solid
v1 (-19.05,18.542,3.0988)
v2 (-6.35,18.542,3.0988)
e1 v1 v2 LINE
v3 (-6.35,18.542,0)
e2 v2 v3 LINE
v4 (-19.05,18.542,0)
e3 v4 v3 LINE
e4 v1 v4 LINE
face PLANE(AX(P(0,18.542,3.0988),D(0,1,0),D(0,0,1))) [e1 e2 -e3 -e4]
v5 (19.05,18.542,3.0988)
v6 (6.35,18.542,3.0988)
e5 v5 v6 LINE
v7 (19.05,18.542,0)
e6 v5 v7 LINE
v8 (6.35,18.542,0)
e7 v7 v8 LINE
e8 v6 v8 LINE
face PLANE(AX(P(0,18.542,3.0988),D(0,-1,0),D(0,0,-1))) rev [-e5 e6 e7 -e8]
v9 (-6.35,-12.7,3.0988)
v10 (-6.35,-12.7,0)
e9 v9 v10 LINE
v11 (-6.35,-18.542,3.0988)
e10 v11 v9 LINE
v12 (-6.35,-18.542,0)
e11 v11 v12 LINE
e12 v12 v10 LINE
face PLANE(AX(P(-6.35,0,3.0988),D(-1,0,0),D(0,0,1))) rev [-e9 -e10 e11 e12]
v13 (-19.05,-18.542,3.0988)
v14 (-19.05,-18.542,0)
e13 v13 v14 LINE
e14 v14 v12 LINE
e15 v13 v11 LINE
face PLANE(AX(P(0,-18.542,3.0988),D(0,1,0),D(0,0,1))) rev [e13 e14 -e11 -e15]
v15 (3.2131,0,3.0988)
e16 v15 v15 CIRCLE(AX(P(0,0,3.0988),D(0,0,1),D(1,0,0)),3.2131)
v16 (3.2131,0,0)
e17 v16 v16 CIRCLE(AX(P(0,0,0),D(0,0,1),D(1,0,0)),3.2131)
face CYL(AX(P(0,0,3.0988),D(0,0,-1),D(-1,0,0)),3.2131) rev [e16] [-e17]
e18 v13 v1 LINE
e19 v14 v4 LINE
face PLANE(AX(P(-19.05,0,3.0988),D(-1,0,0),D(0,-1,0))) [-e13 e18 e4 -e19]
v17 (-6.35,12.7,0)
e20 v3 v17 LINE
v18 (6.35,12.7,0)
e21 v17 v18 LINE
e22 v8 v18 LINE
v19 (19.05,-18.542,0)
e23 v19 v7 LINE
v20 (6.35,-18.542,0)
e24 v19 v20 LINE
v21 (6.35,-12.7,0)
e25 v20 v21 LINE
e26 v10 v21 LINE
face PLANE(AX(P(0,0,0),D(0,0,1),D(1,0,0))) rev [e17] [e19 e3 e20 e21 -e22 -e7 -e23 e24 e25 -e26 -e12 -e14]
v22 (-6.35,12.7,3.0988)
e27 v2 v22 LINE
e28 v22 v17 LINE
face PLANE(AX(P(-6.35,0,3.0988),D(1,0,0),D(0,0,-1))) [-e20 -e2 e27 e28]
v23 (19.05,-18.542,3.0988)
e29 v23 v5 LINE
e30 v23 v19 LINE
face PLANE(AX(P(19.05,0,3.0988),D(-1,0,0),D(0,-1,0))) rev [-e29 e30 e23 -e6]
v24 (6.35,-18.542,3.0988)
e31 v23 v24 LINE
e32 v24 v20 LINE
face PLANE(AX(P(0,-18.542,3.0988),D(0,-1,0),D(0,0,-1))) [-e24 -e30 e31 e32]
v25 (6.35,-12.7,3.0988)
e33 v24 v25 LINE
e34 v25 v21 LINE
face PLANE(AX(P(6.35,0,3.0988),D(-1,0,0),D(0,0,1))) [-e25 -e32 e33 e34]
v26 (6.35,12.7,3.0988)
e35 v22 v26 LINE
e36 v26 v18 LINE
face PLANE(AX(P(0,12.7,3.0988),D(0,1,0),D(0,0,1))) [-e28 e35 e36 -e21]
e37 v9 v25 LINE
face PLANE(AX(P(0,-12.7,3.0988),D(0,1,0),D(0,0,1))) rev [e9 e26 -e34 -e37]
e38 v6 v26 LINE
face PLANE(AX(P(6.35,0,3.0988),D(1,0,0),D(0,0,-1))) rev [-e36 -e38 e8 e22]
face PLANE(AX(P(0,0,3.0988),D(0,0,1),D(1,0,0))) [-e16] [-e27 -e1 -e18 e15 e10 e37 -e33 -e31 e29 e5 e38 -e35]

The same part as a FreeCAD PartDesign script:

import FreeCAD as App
import Part
import Sketcher
Q = App.Units.Quantity

doc = App.newDocument("Part")
params = doc.addObject("Spreadsheet::Sheet", "Params")
for row, (alias, value) in enumerate([
    ("sketch1_diameter", "0.253 in"),
    ("sketch1_width", "0.5 in"),
    ("sketch1_height", "1.46 in"),
    ("pad1_length", "0.122 in"),
], start=1):
    params.set(f"A{row}", alias)
    params.set(f"B{row}", "=" + value)
    params.setAlias(f"B{row}", alias)

body = doc.addObject("PartDesign::Body", "Body")

# Sketch on XY plane
sketch1 = doc.addObject("Sketcher::SketchObject", "Sketch")
body.addObject(sketch1)
sketch1.AttachmentSupport = (doc.XY_Plane, [""])
sketch1.MapMode = "FlatFace"
sketch1.addGeometry([
    Part.LineSegment(App.Vector(-19.1, 18.5, 0), App.Vector(-19.1, -18.5, 0)),  # 0
    Part.LineSegment(App.Vector(-19.1, -18.5, 0), App.Vector(-6.3, -18.5, 0)),  # 1
    Part.LineSegment(App.Vector(-6.3, -18.5, 0), App.Vector(-6.3, -12.7, 0)),  # 2
    Part.LineSegment(App.Vector(-6.3, -12.7, 0), App.Vector(6.3, -12.7, 0)),  # 3
    Part.LineSegment(App.Vector(6.3, -12.7, 0), App.Vector(6.3, -18.5, 0)),  # 4
    Part.LineSegment(App.Vector(6.3, -18.5, 0), App.Vector(19.1, -18.5, 0)),  # 5
    Part.LineSegment(App.Vector(19.1, -18.5, 0), App.Vector(19.1, 18.5, 0)),  # 6
    Part.LineSegment(App.Vector(19.1, 18.5, 0), App.Vector(6.3, 18.5, 0)),  # 7
    Part.LineSegment(App.Vector(6.3, 18.5, 0), App.Vector(6.3, 12.7, 0)),  # 8
    Part.LineSegment(App.Vector(6.3, 12.7, 0), App.Vector(-6.3, 12.7, 0)),  # 9
    Part.LineSegment(App.Vector(-6.3, 12.7, 0), App.Vector(-6.3, 18.5, 0)),  # 10
    Part.LineSegment(App.Vector(-6.3, 18.5, 0), App.Vector(-19.1, 18.5, 0)),  # 11
    Part.Circle(App.Vector(0, 0, 0), App.Vector(0, 0, 1), 3.2),  # 12
], False)
sketch1.addConstraint([
    Sketcher.Constraint("Coincident", 0, 2, 1, 1),
    Sketcher.Constraint("Coincident", 1, 2, 2, 1),
    Sketcher.Constraint("Coincident", 2, 2, 3, 1),
    Sketcher.Constraint("Coincident", 3, 2, 4, 1),
    Sketcher.Constraint("Coincident", 4, 2, 5, 1),
    Sketcher.Constraint("Coincident", 5, 2, 6, 1),
    Sketcher.Constraint("Coincident", 6, 2, 7, 1),
    Sketcher.Constraint("Coincident", 7, 2, 8, 1),
    Sketcher.Constraint("Coincident", 8, 2, 9, 1),
    Sketcher.Constraint("Coincident", 9, 2, 10, 1),
    Sketcher.Constraint("Coincident", 10, 2, 11, 1),
    Sketcher.Constraint("Coincident", 11, 2, 0, 1),
    Sketcher.Constraint("Vertical", 0),
    Sketcher.Constraint("Horizontal", 1),
    Sketcher.Constraint("Vertical", 2),
    Sketcher.Constraint("Horizontal", 3),
    Sketcher.Constraint("Vertical", 4),
    Sketcher.Constraint("Horizontal", 5),
    Sketcher.Constraint("Vertical", 6),
    Sketcher.Constraint("Horizontal", 7),
    Sketcher.Constraint("Vertical", 8),
    Sketcher.Constraint("Horizontal", 9),
    Sketcher.Constraint("Vertical", 10),
    Sketcher.Constraint("Horizontal", 11),
    Sketcher.Constraint("Coincident", 12, 3, -1, 1),
    Sketcher.Constraint("Symmetric", 0, 2, 6, 2, -1, 1),
    Sketcher.Constraint("Symmetric", 2, 2, 8, 2, -1, 1),
    Sketcher.Constraint("Symmetric", 4, 2, 10, 2, -1, 1),
    Sketcher.Constraint("Symmetric", 1, 2, 4, 2, -2),
    Sketcher.Constraint("Equal", 1, 3),
    Sketcher.Constraint("Diameter", 12, Q("0.253 in")),
    Sketcher.Constraint("DistanceX", 1, 1, 1, 2, Q("0.5 in")),
    Sketcher.Constraint("DistanceY", 3, 2, 8, 2, Q("1 in")),
    Sketcher.Constraint("DistanceY", 0, 2, 0, 1, Q("1.46 in")),
])
sketch1.setExpression("Constraints[30]", "Params.sketch1_diameter")
sketch1.setExpression("Constraints[31]", "Params.sketch1_width")
sketch1.setExpression("Constraints[33]", "Params.sketch1_height")
pad1 = doc.addObject("PartDesign::Pad", "Pad")
body.addObject(pad1)
pad1.Profile = sketch1
pad1.setExpression("Length", "Params.pad1_length")

doc.recompute()
